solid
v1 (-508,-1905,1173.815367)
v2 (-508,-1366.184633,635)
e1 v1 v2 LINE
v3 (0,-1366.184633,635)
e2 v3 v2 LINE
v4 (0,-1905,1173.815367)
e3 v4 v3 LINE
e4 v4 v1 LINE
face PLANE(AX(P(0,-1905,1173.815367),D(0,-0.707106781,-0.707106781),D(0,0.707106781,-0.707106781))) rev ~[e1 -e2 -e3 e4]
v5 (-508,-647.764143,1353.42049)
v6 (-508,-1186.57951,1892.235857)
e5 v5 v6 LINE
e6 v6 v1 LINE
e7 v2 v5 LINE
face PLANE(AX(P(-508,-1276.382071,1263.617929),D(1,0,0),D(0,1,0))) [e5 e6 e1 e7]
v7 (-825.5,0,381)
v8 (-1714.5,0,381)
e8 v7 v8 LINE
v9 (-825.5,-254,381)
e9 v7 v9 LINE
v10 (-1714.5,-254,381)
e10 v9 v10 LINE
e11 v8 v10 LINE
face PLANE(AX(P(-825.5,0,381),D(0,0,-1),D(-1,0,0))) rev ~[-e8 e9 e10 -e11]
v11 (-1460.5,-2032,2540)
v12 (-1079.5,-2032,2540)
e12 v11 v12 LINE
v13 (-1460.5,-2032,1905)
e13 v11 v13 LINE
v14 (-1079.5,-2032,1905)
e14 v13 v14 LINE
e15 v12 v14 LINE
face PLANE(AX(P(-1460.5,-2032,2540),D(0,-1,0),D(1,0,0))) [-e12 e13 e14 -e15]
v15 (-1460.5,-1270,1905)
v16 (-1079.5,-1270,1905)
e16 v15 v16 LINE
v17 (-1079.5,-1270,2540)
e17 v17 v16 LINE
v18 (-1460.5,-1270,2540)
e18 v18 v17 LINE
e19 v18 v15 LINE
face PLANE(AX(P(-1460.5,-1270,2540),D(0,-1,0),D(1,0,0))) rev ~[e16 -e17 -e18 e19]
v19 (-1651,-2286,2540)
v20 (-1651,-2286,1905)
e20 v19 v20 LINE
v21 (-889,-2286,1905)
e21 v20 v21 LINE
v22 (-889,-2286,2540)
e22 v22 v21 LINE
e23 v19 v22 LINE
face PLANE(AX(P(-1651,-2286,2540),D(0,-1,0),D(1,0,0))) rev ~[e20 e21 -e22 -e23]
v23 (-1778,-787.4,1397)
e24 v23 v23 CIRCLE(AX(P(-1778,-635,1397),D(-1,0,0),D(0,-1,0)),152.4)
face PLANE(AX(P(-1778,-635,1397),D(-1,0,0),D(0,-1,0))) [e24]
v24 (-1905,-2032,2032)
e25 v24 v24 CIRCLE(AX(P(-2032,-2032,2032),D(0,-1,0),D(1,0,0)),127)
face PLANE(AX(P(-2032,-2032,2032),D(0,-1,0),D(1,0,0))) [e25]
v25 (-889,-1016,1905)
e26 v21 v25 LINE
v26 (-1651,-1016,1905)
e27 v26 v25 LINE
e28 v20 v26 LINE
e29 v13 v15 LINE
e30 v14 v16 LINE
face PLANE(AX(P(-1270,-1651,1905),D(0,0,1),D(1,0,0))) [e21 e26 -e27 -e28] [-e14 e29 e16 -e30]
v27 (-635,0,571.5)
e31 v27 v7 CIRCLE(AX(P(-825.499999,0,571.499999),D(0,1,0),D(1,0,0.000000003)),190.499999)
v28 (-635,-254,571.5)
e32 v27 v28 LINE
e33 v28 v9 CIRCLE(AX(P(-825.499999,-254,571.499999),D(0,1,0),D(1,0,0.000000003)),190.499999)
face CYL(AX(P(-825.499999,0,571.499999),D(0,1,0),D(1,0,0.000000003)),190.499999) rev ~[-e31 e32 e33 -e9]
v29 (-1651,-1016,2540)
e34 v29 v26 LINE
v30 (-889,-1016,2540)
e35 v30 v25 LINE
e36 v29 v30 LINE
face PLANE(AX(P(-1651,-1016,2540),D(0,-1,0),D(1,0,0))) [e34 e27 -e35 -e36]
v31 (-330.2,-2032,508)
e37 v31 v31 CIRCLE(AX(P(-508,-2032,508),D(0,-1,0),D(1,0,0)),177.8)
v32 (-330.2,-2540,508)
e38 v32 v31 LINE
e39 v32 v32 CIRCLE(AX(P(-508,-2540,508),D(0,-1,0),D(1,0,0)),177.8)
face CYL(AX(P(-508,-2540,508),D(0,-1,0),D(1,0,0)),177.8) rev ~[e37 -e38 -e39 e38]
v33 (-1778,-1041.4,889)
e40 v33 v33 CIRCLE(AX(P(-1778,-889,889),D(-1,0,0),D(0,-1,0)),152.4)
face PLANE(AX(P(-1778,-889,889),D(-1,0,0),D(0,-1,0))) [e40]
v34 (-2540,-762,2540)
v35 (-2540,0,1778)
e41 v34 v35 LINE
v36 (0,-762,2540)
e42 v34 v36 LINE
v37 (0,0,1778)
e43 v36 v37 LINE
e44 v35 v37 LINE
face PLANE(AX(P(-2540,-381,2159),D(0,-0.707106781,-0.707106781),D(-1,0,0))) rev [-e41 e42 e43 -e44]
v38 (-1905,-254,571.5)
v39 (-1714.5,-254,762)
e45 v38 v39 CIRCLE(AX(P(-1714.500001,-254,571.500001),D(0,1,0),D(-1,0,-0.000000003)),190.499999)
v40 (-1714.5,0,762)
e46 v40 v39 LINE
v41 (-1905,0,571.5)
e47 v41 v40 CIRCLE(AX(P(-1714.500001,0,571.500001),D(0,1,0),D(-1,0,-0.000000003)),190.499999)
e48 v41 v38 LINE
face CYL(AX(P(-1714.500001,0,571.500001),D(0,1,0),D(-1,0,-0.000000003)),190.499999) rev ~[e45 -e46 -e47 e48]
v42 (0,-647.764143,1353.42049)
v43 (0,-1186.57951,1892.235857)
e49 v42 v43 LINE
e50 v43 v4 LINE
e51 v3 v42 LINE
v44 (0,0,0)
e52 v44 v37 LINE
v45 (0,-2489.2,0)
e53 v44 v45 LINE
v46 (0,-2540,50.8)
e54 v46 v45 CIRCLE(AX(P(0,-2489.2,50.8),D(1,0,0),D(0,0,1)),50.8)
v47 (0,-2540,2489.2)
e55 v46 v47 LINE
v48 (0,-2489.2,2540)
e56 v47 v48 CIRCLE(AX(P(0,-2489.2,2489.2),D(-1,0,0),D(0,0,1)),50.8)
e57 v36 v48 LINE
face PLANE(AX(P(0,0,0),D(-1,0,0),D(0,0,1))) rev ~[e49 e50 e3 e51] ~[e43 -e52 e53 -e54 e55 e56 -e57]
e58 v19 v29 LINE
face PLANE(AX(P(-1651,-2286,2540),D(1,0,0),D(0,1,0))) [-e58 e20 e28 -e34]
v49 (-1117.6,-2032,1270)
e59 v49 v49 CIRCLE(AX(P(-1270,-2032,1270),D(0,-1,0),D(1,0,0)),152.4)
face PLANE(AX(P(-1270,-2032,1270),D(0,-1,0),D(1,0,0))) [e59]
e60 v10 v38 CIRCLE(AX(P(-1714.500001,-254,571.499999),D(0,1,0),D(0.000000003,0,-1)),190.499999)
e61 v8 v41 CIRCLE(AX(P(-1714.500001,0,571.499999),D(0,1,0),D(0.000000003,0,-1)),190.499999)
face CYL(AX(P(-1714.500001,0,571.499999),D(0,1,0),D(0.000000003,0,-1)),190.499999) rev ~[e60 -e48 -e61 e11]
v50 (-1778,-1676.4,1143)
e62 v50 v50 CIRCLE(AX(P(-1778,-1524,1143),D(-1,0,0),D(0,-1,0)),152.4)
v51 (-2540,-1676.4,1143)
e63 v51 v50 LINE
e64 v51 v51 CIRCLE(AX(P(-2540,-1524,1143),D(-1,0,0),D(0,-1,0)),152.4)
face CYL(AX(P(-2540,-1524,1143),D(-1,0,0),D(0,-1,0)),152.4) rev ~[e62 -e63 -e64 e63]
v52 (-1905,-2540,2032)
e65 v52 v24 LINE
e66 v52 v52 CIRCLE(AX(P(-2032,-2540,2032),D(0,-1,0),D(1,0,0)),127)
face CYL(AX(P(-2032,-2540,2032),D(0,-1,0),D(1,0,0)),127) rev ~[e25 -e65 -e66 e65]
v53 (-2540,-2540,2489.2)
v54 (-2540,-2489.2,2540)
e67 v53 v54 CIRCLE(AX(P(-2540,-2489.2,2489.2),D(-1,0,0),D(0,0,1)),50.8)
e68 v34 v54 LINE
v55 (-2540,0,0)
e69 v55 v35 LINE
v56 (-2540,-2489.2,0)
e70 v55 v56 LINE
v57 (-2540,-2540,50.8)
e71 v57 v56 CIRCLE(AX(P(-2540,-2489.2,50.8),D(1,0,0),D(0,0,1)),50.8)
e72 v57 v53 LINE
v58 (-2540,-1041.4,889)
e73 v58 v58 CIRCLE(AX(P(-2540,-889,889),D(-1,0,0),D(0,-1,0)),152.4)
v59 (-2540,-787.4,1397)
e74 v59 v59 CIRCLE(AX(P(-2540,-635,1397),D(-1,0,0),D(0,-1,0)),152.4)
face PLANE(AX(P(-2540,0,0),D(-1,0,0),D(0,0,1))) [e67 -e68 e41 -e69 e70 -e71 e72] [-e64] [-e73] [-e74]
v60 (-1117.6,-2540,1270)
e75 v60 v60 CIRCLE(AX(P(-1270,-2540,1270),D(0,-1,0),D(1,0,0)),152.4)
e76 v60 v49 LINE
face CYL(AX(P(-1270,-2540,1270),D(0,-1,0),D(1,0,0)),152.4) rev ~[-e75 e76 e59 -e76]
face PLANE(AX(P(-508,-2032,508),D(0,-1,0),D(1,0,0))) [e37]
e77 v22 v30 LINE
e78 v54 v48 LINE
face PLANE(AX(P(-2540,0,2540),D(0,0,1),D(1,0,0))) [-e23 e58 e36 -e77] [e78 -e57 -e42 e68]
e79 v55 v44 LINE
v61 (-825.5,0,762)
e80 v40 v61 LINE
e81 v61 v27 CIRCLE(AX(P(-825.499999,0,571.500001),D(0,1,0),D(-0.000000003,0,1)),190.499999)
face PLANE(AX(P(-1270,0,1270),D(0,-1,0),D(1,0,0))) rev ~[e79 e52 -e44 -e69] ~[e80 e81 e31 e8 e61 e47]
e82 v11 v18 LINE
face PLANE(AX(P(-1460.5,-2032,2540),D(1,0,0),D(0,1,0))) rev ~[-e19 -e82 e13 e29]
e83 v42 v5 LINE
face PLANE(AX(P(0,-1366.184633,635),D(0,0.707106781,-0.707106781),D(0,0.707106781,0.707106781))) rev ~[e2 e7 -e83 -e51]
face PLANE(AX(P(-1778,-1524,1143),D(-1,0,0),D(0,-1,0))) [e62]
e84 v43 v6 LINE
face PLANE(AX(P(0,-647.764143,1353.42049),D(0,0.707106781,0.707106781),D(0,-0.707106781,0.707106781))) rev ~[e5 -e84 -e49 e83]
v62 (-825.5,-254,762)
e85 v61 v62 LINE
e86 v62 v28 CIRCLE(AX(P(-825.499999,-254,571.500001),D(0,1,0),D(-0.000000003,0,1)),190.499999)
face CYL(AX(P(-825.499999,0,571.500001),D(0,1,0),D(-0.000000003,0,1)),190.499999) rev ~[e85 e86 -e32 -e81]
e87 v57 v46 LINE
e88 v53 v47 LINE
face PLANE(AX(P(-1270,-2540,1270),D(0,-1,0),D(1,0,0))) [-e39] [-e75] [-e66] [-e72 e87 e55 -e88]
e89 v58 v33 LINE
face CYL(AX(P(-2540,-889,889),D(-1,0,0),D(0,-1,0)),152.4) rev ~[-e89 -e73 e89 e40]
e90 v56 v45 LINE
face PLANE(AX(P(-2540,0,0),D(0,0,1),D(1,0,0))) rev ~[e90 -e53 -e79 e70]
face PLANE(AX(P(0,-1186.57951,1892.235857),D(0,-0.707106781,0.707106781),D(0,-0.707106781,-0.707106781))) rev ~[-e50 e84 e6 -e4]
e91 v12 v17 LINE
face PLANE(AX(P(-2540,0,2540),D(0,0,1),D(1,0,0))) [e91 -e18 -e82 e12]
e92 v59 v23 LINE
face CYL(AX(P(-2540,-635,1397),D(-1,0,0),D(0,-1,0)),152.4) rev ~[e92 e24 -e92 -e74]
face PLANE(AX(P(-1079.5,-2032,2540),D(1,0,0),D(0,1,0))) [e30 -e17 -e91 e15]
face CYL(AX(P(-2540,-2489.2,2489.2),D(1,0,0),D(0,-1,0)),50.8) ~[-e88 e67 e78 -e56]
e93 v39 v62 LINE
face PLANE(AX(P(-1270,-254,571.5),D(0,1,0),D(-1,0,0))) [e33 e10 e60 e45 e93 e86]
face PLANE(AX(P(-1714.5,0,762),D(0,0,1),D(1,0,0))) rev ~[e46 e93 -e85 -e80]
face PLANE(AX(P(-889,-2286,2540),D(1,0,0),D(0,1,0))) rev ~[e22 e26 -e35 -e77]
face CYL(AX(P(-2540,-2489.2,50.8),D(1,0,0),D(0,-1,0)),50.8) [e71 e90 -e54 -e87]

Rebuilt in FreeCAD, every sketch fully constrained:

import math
import FreeCAD as App
import Part
import Sketcher

V = App.Vector
Q = App.Units.Quantity


def edges_at(feature, points):
    """Names of the edges that pass closest to the given points."""
    edges = feature.Shape.Edges
    near = lambda p: min(range(len(edges)), key=lambda i: edges[i].distToShape(Part.Vertex(*p))[0])
    return sorted({f"Edge{near(p) + 1}" for p in points})


def add_polygon(sketch, points):
    """Adds a closed chain of lines whose ends are joined by coincident constraints."""
    first, n = sketch.GeometryCount, len(points)
    for a, b in zip(points, points[1:] + points[:1]):
        sketch.addGeometry(Part.LineSegment(App.Vector(*a, 0), App.Vector(*b, 0)), False)
    for i in range(n):
        sketch.addConstraint(Sketcher.Constraint("Coincident", first + i, 2, first + (i + 1) % n, 1))

doc = App.newDocument("Part")
params = doc.addObject("Spreadsheet::Sheet", "Params")
for row, (alias, value) in enumerate([
    ("sketch1_width", "100 in"),
    ("pad1_length", "100 in"),
    ("chamfer_size", "30 in"),
    ("chamfer_size2", "30 in"),
    ("sketch2_width", "30 in"),
    ("sketch2_width2", "15 in"),
    ("sketch2_height", "50 in"),
    ("pocket1_length", "25 in"),
    ("sketch3_length", "30 in"),
    ("sketch3_length2", "40 in"),
    ("pocket2_length", "20 in"),
    ("sketch4_diameter", "10 in"),
    ("sketch4_diameter2", "12 in"),
    ("sketch4_diameter3", "14 in"),
    ("pocket3_length", "20 in"),
    ("sketch5_radius", "7.5 in"),
    ("sketch5_width", "35 in"),
    ("pocket4_length", "10 in"),
    ("fillet_radius", "2 in"),
    ("fillet2_radius", "2 in"),
    ("sketch6_diameter", "12 in"),
    ("pocket5_length", "30 in"),
], start=1):
    params.set(f"A{row}", alias)
    params.set(f"B{row}", "=" + value)
    params.setAlias(f"B{row}", alias)

body = doc.addObject("PartDesign::Body", "Body")

sketch1 = body.newObject("Sketcher::SketchObject", "Sketch")
sketch1.AttachmentSupport = (doc.getObject("XZ_Plane"), [""])
sketch1.MapMode = "FlatFace"
add_polygon(sketch1, [(-2540, 2540), (-2540, 0), (0, 0), (0, 2540)])
sketch1.addConstraint(Sketcher.Constraint("Vertical", 0))
sketch1.addConstraint(Sketcher.Constraint("Horizontal", 1))
sketch1.addConstraint(Sketcher.Constraint("Vertical", 2))
sketch1.addConstraint(Sketcher.Constraint("Horizontal", 3))
sketch1.addConstraint(Sketcher.Constraint("Coincident", 1, 2, -1, 1))
sketch1.addConstraint(Sketcher.Constraint("Equal", 3, 0))
sketch1.addConstraint(Sketcher.Constraint("DistanceX", 1, 1, 1, 2, Q("100 in")))
sketch1.setExpression("Constraints[10]", "Params.sketch1_width")
pad1 = body.newObject("PartDesign::Pad", "Pad")
pad1.Profile = sketch1
pad1.setExpression("Length", "Params.pad1_length")
doc.recompute()

chamfer = body.newObject("PartDesign::Chamfer", "Chamfer")
chamfer.Base = (pad1, edges_at(pad1, [(-1270, 0, 2540)]))
chamfer.ChamferType = "Two distances"
chamfer.setExpression("Size", "Params.chamfer_size")
chamfer.setExpression("Size2", "Params.chamfer_size2")

sketch2 = body.newObject("Sketcher::SketchObject", "Sketch001")
sketch2.AttachmentSupport = (doc.getObject("XY_Plane"), [""])
sketch2.MapMode = "FlatFace"
sketch2.AttachmentOffset = App.Placement(V(0, 0, 100 * 25.4), App.Rotation())
add_polygon(sketch2, [(-1651, -1016), (-1651, -2286), (-889, -2286), (-889, -1016)])
add_polygon(sketch2, [(-1080, -2032), (-1460, -2032), (-1460, -1270), (-1080, -1270)])
sketch2.addConstraint(Sketcher.Constraint("Vertical", 0))
sketch2.addConstraint(Sketcher.Constraint("Horizontal", 1))
sketch2.addConstraint(Sketcher.Constraint("Vertical", 2))
sketch2.addConstraint(Sketcher.Constraint("Horizontal", 3))
sketch2.addConstraint(Sketcher.Constraint("Horizontal", 4))
sketch2.addConstraint(Sketcher.Constraint("Vertical", 5))
sketch2.addConstraint(Sketcher.Constraint("Horizontal", 6))
sketch2.addConstraint(Sketcher.Constraint("Vertical", 7))
sketch2.addConstraint(Sketcher.Constraint("Equal", 3, 5))
sketch2.addConstraint(Sketcher.Constraint("DistanceX", 1, 1, 1, 2, Q("30 in")))
sketch2.addConstraint(Sketcher.Constraint("DistanceX", 4, 2, 4, 1, Q("15 in")))
sketch2.addConstraint(Sketcher.Constraint("DistanceY", 0, 2, 0, 1, Q("50 in")))
sketch2.addConstraint(Sketcher.Constraint("DistanceX", 0, 2, -1, 1, Q("65 in")))
sketch2.addConstraint(Sketcher.Constraint("DistanceY", 0, 2, -1, 1, Q("90 in")))
sketch2.addConstraint(Sketcher.Constraint("DistanceY", 4, 2, -1, 1, Q("80 in")))
sketch2.addConstraint(Sketcher.Constraint("DistanceX", 4, 2, -1, 1, Q("57.5 in")))
sketch2.setExpression("Constraints[17]", "Params.sketch2_width")
sketch2.setExpression("Constraints[18]", "Params.sketch2_width2")
sketch2.setExpression("Constraints[19]", "Params.sketch2_height")
pocket1 = body.newObject("PartDesign::Pocket", "Pocket")
pocket1.Profile = sketch2
pocket1.setExpression("Length", "Params.pocket1_length")

sketch3 = body.newObject("Sketcher::SketchObject", "Sketch002")
sketch3.AttachmentSupport = (doc.getObject("YZ_Plane"), [""])
sketch3.MapMode = "FlatFace"
add_polygon(sketch3, [(-648, 1353), (-1187, 1892), (-1905, 1174), (-1366, 635)])
sketch3.addConstraint(Sketcher.Constraint("Perpendicular", 0, 1))
sketch3.addConstraint(Sketcher.Constraint("Perpendicular", 1, 2))
sketch3.addConstraint(Sketcher.Constraint("Perpendicular", 2, 3))
sketch3.addConstraint(Sketcher.Constraint("Distance", 0, Q("30 in")))
sketch3.addConstraint(Sketcher.Constraint("Distance", 1, Q("40 in")))
sketch3.addConstraint(Sketcher.Constraint("DistanceX", 1, 2, -1, 1, Q("75 in")))
sketch3.addConstraint(Sketcher.Constraint("DistanceY", -1, 1, 2, 2, Q("25 in")))
sketch3.addConstraint(Sketcher.Constraint("Angle", 0, Q("135 deg")))
sketch3.setExpression("Constraints[7]", "Params.sketch3_length")
sketch3.setExpression("Constraints[8]", "Params.sketch3_length2")
pocket2 = body.newObject("PartDesign::Pocket", "Pocket001")
pocket2.Profile = sketch3
pocket2.setExpression("Length", "Params.pocket2_length")

sketch4 = body.newObject("Sketcher::SketchObject", "Sketch003")
sketch4.AttachmentSupport = (doc.getObject("XZ_Plane"), [""])
sketch4.MapMode = "FlatFace"
sketch4.AttachmentOffset = App.Placement(V(0, 0, 100 * 25.4), App.Rotation())
sketch4.addGeometry(Part.Circle(V(-2032, 2032, 0), V(0, 0, 1), 127), False)
sketch4.addGeometry(Part.Circle(V(-1270, 1270, 0), V(0, 0, 1), 152), False)
sketch4.addGeometry(Part.Circle(V(-508, 508, 0), V(0, 0, 1), 178), False)
sketch4.addConstraint(Sketcher.Constraint("Diameter", 0, Q("10 in")))
sketch4.addConstraint(Sketcher.Constraint("Diameter", 1, Q("12 in")))
sketch4.addConstraint(Sketcher.Constraint("Diameter", 2, Q("14 in")))
sketch4.addConstraint(Sketcher.Constraint("DistanceX", 0, 3, -1, 1, Q("80 in")))
sketch4.addConstraint(Sketcher.Constraint("DistanceY", -1, 1, 0, 3, Q("80 in")))
sketch4.addConstraint(Sketcher.Constraint("DistanceX", 1, 3, -1, 1, Q("50 in")))
sketch4.addConstraint(Sketcher.Constraint("DistanceY", -1, 1, 1, 3, Q("50 in")))
sketch4.addConstraint(Sketcher.Constraint("DistanceX", 2, 3, -1, 1, Q("20 in")))
sketch4.addConstraint(Sketcher.Constraint("DistanceY", -1, 1, 2, 3, Q("20 in")))
sketch4.setExpression("Constraints[0]", "Params.sketch4_diameter")
sketch4.setExpression("Constraints[1]", "Params.sketch4_diameter2")
sketch4.setExpression("Constraints[2]", "Params.sketch4_diameter3")
pocket3 = body.newObject("PartDesign::Pocket", "Pocket002")
pocket3.Profile = sketch4
pocket3.setExpression("Length", "Params.pocket3_length")

sketch5 = body.newObject("Sketcher::SketchObject", "Sketch004")
sketch5.AttachmentSupport = (doc.getObject("XZ_Plane"), [""])
sketch5.MapMode = "FlatFace"
sketch5.addGeometry(Part.LineSegment(V(-1714, 762, 0), V(-826, 762, 0)), False)
sketch5.addGeometry(Part.ArcOfCircle(Part.Circle(V(-825, 572, 0), V(0, 0, 1), 190), math.radians(0), math.radians(90)), False)
sketch5.addGeometry(Part.ArcOfCircle(Part.Circle(V(-825, 571, 0), V(0, 0, 1), 190), math.radians(-90), math.radians(0)), False)
sketch5.addGeometry(Part.LineSegment(V(-826, 381, 0), V(-1714, 381, 0)), False)
sketch5.addGeometry(Part.ArcOfCircle(Part.Circle(V(-1715, 571, 0), V(0, 0, 1), 190), math.radians(180), math.radians(270)), False)
sketch5.addGeometry(Part.ArcOfCircle(Part.Circle(V(-1715, 572, 0), V(0, 0, 1), 190), math.radians(90), math.radians(180)), False)
sketch5.addConstraint(Sketcher.Constraint("Tangent", 0, 2, 1, 2))
sketch5.addConstraint(Sketcher.Constraint("Tangent", 1, 1, 2, 2))
sketch5.addConstraint(Sketcher.Constraint("Tangent", 2, 1, 3, 1))
sketch5.addConstraint(Sketcher.Constraint("Tangent", 3, 2, 4, 2))
sketch5.addConstraint(Sketcher.Constraint("Tangent", 4, 1, 5, 2))
sketch5.addConstraint(Sketcher.Constraint("Tangent", 5, 1, 0, 1))
sketch5.addConstraint(Sketcher.Constraint("Horizontal", 0))
sketch5.addConstraint(Sketcher.Constraint("Horizontal", 3))
sketch5.addConstraint(Sketcher.Constraint("Equal", 1, 2))
sketch5.addConstraint(Sketcher.Constraint("Equal", 2, 4))
sketch5.addConstraint(Sketcher.Constraint("Horizontal", 5, 3, 1, 1))
sketch5.addConstraint(Sketcher.Constraint("Horizontal", 1, 1, 4, 1))
sketch5.addConstraint(Sketcher.Constraint("Radius", 1, Q("7.5 in")))
sketch5.addConstraint(Sketcher.Constraint("DistanceX", 0, 1, 0, 2, Q("35 in")))
sketch5.addConstraint(Sketcher.Constraint("DistanceY", -1, 1, 0, 2, Q("30 in")))
sketch5.addConstraint(Sketcher.Constraint("DistanceX", 1, 1, -1, 1, Q("25 in")))
sketch5.setExpression("Constraints[12]", "Params.sketch5_radius")
sketch5.setExpression("Constraints[13]", "Params.sketch5_width")
pocket4 = body.newObject("PartDesign::Pocket", "Pocket003")
pocket4.Profile = sketch5
pocket4.setExpression("Length", "Params.pocket4_length")
pocket4.Reversed = True
doc.recompute()

fillet = body.newObject("PartDesign::Fillet", "Fillet")
fillet.Base = (pocket4, edges_at(pocket4, [(-1270, -2540, 0)]))
fillet.setExpression("Radius", "Params.fillet_radius")
doc.recompute()

fillet2 = body.newObject("PartDesign::Fillet", "Fillet001")
fillet2.Base = (fillet, edges_at(fillet, [(-1270, -2540, 2540)]))
fillet2.setExpression("Radius", "Params.fillet2_radius")

sketch6 = body.newObject("Sketcher::SketchObject", "Sketch005")
sketch6.AttachmentSupport = (doc.getObject("YZ_Plane"), [""])
sketch6.MapMode = "FlatFace"
sketch6.AttachmentOffset = App.Placement(V(0, 0, -100 * 25.4), App.Rotation())
sketch6.addGeometry(Part.Circle(V(-635, 1397, 0), V(0, 0, 1), 152), False)
sketch6.addGeometry(Part.Circle(V(-889, 889, 0), V(0, 0, 1), 152), False)
sketch6.addGeometry(Part.Circle(V(-1524, 1143, 0), V(0, 0, 1), 152), False)
sketch6.addConstraint(Sketcher.Constraint("Equal", 0, 1))
sketch6.addConstraint(Sketcher.Constraint("Equal", 1, 2))
sketch6.addConstraint(Sketcher.Constraint("Diameter", 0, Q("12 in")))
sketch6.addConstraint(Sketcher.Constraint("DistanceX", 0, 3, -1, 1, Q("25 in")))
sketch6.addConstraint(Sketcher.Constraint("DistanceY", -1, 1, 0, 3, Q("55 in")))
sketch6.addConstraint(Sketcher.Constraint("DistanceX", 1, 3, -1, 1, Q("35 in")))
sketch6.addConstraint(Sketcher.Constraint("DistanceY", -1, 1, 1, 3, Q("35 in")))
sketch6.addConstraint(Sketcher.Constraint("DistanceX", 2, 3, -1, 1, Q("60 in")))
sketch6.addConstraint(Sketcher.Constraint("DistanceY", -1, 1, 2, 3, Q("45 in")))
sketch6.setExpression("Constraints[2]", "Params.sketch6_diameter")
pocket5 = body.newObject("PartDesign::Pocket", "Pocket004")
pocket5.Profile = sketch6
pocket5.setExpression("Length", "Params.pocket5_length")
pocket5.Reversed = True

doc.recompute()
